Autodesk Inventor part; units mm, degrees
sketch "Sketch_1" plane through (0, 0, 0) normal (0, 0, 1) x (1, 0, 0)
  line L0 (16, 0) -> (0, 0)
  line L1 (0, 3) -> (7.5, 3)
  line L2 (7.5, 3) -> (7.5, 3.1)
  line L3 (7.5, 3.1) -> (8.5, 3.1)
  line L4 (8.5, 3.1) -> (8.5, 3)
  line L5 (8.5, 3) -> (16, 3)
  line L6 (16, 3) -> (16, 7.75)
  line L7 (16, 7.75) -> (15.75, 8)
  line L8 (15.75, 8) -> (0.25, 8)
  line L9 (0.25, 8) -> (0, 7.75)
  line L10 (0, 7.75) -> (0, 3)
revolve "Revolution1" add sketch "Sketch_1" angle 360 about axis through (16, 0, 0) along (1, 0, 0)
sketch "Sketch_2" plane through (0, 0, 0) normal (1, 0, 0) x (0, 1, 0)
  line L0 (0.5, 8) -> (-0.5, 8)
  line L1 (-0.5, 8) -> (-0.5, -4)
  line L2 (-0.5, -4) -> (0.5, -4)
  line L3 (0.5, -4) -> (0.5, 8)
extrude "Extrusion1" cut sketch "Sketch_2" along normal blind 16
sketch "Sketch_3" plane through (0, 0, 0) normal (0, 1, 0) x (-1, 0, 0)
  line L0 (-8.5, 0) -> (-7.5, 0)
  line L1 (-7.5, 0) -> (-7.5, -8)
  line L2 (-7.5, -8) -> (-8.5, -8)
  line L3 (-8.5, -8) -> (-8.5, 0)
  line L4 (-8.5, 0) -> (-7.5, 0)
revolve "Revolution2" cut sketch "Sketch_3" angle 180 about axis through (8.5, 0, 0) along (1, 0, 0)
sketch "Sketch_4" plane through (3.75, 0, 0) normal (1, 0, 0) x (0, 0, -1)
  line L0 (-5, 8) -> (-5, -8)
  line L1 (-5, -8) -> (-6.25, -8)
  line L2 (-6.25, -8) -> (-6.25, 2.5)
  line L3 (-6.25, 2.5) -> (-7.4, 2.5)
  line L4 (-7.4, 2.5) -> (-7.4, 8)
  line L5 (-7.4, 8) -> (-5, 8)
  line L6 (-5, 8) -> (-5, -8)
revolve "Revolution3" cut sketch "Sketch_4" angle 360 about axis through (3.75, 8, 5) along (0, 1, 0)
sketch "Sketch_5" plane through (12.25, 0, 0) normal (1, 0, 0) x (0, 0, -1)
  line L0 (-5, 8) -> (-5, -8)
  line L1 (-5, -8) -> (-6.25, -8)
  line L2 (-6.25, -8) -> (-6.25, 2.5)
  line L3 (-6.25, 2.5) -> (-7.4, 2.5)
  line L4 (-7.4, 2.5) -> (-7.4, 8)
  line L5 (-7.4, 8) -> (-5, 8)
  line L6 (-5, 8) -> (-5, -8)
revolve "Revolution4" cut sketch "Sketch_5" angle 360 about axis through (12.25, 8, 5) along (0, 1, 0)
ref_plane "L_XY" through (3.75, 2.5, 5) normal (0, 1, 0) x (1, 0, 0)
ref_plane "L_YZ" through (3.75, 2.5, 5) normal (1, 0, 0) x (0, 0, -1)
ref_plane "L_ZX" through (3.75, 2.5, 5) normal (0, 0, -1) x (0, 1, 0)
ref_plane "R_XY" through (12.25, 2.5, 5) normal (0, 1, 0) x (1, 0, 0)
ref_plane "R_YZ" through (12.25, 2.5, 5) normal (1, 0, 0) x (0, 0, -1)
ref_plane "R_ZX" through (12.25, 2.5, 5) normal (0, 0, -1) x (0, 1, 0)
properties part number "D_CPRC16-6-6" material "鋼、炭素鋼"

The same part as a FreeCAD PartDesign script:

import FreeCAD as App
import Part
import Sketcher
Q = App.Units.Quantity

doc = App.newDocument("Part")
body = doc.addObject("PartDesign::Body", "Body")

sketch1 = body.newObject("Sketcher::SketchObject", "Sketch")
sketch1.AttachmentSupport = (doc.getObject("XY_Plane"), [""])
sketch1.MapMode = "FlatFace"
sketch1.addGeometry([
    Part.LineSegment(App.Vector(0, 7.75, 0), App.Vector(0, 3, 0)),
    Part.LineSegment(App.Vector(0, 3, 0), App.Vector(7.5, 3, 0)),
    Part.LineSegment(App.Vector(7.5, 3, 0), App.Vector(7.5, 3.1, 0)),
    Part.LineSegment(App.Vector(7.5, 3.1, 0), App.Vector(8.5, 3.1, 0)),
    Part.LineSegment(App.Vector(8.5, 3.1, 0), App.Vector(8.5, 3, 0)),
    Part.LineSegment(App.Vector(8.5, 3, 0), App.Vector(16, 3, 0)),
    Part.LineSegment(App.Vector(16, 3, 0), App.Vector(16, 7.75, 0)),
    Part.LineSegment(App.Vector(16, 7.75, 0), App.Vector(15.75, 8, 0)),
    Part.LineSegment(App.Vector(15.75, 8, 0), App.Vector(0.25, 8, 0)),
    Part.LineSegment(App.Vector(0.25, 8, 0), App.Vector(0, 7.75, 0)),
], False)
sketch1.addConstraint([
    Sketcher.Constraint("Coincident", 0, 2, 1, 1),
    Sketcher.Constraint("Coincident", 1, 2, 2, 1),
    Sketcher.Constraint("Coincident", 2, 2, 3, 1),
    Sketcher.Constraint("Coincident", 3, 2, 4, 1),
    Sketcher.Constraint("Coincident", 4, 2, 5, 1),
    Sketcher.Constraint("Coincident", 5, 2, 6, 1),
    Sketcher.Constraint("Coincident", 6, 2, 7, 1),
    Sketcher.Constraint("Coincident", 7, 2, 8, 1),
    Sketcher.Constraint("Coincident", 8, 2, 9, 1),
    Sketcher.Constraint("Coincident", 9, 2, 0, 1),
    Sketcher.Constraint("Vertical", 0),
    Sketcher.Constraint("Horizontal", 1),
    Sketcher.Constraint("Vertical", 2),
    Sketcher.Constraint("Horizontal", 3),
    Sketcher.Constraint("Vertical", 4),
    Sketcher.Constraint("Horizontal", 5),
    Sketcher.Constraint("Vertical", 6),
    Sketcher.Constraint("Horizontal", 8),
    Sketcher.Constraint("PointOnObject", 0, 2, -2),
    Sketcher.Constraint("Perpendicular", 7, 9),
    Sketcher.Constraint("Horizontal", 1, 2, 4, 2),
    Sketcher.Constraint("Horizontal", 6, 2, 9, 2),
    Sketcher.Constraint("Equal", 1, 5),
    Sketcher.Constraint("Equal", 7, 9),
    Sketcher.Constraint("DistanceX", 3, 1, 3, 2, Q("1 mm")),
    Sketcher.Constraint("DistanceX", 1, 1, 1, 2, Q("7.5 mm")),
    Sketcher.Constraint("DistanceX", 8, 2, 8, 1, Q("15.5 mm")),
    Sketcher.Constraint("DistanceY", 2, 1, 2, 2, Q("0.1 mm")),
    Sketcher.Constraint("DistanceY", -1, 1, 0, 2, Q("3 mm")),
    Sketcher.Constraint("DistanceY", -1, 1, 7, 2, Q("8 mm")),
])
revolution = body.newObject("PartDesign::Revolution", "Revolution")
revolution.Profile = sketch1
revolution.ReferenceAxis = (sketch1, ["H_Axis"])
revolution.Angle = 360

sketch2 = body.newObject("Sketcher::SketchObject", "Sketch001")
sketch2.AttachmentSupport = (doc.getObject("YZ_Plane"), [""])
sketch2.MapMode = "FlatFace"
sketch2.addGeometry([
    Part.LineSegment(App.Vector(0.5, -4, 0), App.Vector(0.5, 8, 0)),
    Part.LineSegment(App.Vector(0.5, 8, 0), App.Vector(-0.5, 8, 0)),
    Part.LineSegment(App.Vector(-0.5, 8, 0), App.Vector(-0.5, -4, 0)),
    Part.LineSegment(App.Vector(-0.5, -4, 0), App.Vector(0.5, -4, 0)),
], False)
sketch2.addConstraint([
    Sketcher.Constraint("Coincident", 0, 2, 1, 1),
    Sketcher.Constraint("Coincident", 1, 2, 2, 1),
    Sketcher.Constraint("Coincident", 2, 2, 3, 1),
    Sketcher.Constraint("Coincident", 3, 2, 0, 1),
    Sketcher.Constraint("Vertical", 0),
    Sketcher.Constraint("Horizontal", 1),
    Sketcher.Constraint("Vertical", 2),
    Sketcher.Constraint("Horizontal", 3),
    Sketcher.Constraint("DistanceX", 1, 2, 1, 1, Q("1 mm")),
    Sketcher.Constraint("DistanceY", 0, 1, 0, 2, Q("12 mm")),
    Sketcher.Constraint("DistanceY", -1, 1, 0, 2, Q("8 mm")),
    Sketcher.Constraint("DistanceX", -1, 1, 0, 2, Q("0.5 mm")),
])
pocket1 = body.newObject("PartDesign::Pocket", "Pocket")
pocket1.Profile = sketch2
pocket1.Length = 16
pocket1.Reversed = True

sketch3 = body.newObject("Sketcher::SketchObject", "Sketch002")
sketch3.AttachmentSupport = (doc.getObject("XZ_Plane"), [""])
sketch3.MapMode = "FlatFace"
sketch3.addGeometry([
    Part.LineSegment(App.Vector(7.5, 0, 0), App.Vector(8.5, 0, 0)),
    Part.LineSegment(App.Vector(8.5, 0, 0), App.Vector(8.5, -8, 0)),
    Part.LineSegment(App.Vector(8.5, -8, 0), App.Vector(7.5, -8, 0)),
    Part.LineSegment(App.Vector(7.5, -8, 0), App.Vector(7.5, 0, 0)),
], False)
sketch3.addConstraint([
    Sketcher.Constraint("Coincident", 0, 2, 1, 1),
    Sketcher.Constraint("Coincident", 1, 2, 2, 1),
    Sketcher.Constraint("Coincident", 2, 2, 3, 1),
    Sketcher.Constraint("Coincident", 3, 2, 0, 1),
    Sketcher.Constraint("Horizontal", 0),
    Sketcher.Constraint("Vertical", 1),
    Sketcher.Constraint("Horizontal", 2),
    Sketcher.Constraint("Vertical", 3),
    Sketcher.Constraint("PointOnObject", 0, 2, -1),
    Sketcher.Constraint("DistanceX", 0, 1, 0, 2, Q("1 mm")),
    Sketcher.Constraint("DistanceY", 1, 2, 1, 1, Q("8 mm")),
    Sketcher.Constraint("DistanceX", -1, 1, 0, 2, Q("8.5 mm")),
])
groove = body.newObject("PartDesign::Groove", "Groove")
groove.Profile = sketch3
groove.ReferenceAxis = (sketch3, ["H_Axis"])
groove.Angle = 180

sketch4 = body.newObject("Sketcher::SketchObject", "Sketch003")
sketch4.AttachmentSupport = (doc.getObject("YZ_Plane"), [""])
sketch4.MapMode = "FlatFace"
sketch4.AttachmentOffset = App.Placement(App.Vector(0, 0, 3.75), App.Rotation())
sketch4.addGeometry([
    Part.LineSegment(App.Vector(-8, 5, 0), App.Vector(8, 5, 0)),
    Part.LineSegment(App.Vector(8, 5, 0), App.Vector(8, 7.4, 0)),
    Part.LineSegment(App.Vector(8, 7.4, 0), App.Vector(2.5, 7.4, 0)),
    Part.LineSegment(App.Vector(2.5, 7.4, 0), App.Vector(2.5, 6.2, 0)),
    Part.LineSegment(App.Vector(2.5, 6.2, 0), App.Vector(-8, 6.2, 0)),
    Part.LineSegment(App.Vector(-8, 6.2, 0), App.Vector(-8, 5, 0)),
], False)
sketch4.addGeometry(Part.LineSegment(App.Vector(-8, 5, 0), App.Vector(8, 5, 0)), True)
sketch4.addConstraint([
    Sketcher.Constraint("Coincident", 0, 2, 1, 1),
    Sketcher.Constraint("Coincident", 1, 2, 2, 1),
    Sketcher.Constraint("Coincident", 2, 2, 3, 1),
    Sketcher.Constraint("Coincident", 3, 2, 4, 1),
    Sketcher.Constraint("Coincident", 4, 2, 5, 1),
    Sketcher.Constraint("Coincident", 5, 2, 0, 1),
    Sketcher.Constraint("Horizontal", 0),
    Sketcher.Constraint("Vertical", 1),
    Sketcher.Constraint("Horizontal", 2),
    Sketcher.Constraint("Vertical", 3),
    Sketcher.Constraint("Horizontal", 4),
    Sketcher.Constraint("Vertical", 5),
    Sketcher.Constraint("Horizontal", 6),
    Sketcher.Constraint("Coincident", 6, 1, 5, 2),
    Sketcher.Constraint("Vertical", 1, 2, 6, 2),
    Sketcher.Constraint("DistanceX", 0, 1, 0, 2, Q("16 mm")),
    Sketcher.Constraint("DistanceX", 2, 2, 2, 1, Q("5.5 mm")),
    Sketcher.Constraint("DistanceY", 1, 1, 1, 2, Q("2.4 mm")),
    Sketcher.Constraint("DistanceX", -1, 1, 0, 2, Q("8 mm")),
    Sketcher.Constraint("DistanceY", -1, 1, 0, 2, Q("5 mm")),
    Sketcher.Constraint("DistanceY", 3, 2, 3, 1, Q("1.15 mm")),
])
groove2 = body.newObject("PartDesign::Groove", "Groove001")
groove2.Profile = sketch4
groove2.ReferenceAxis = (sketch4, ["Axis0"])
groove2.Angle = 360

sketch5 = body.newObject("Sketcher::SketchObject", "Sketch004")
sketch5.AttachmentSupport = (doc.getObject("YZ_Plane"), [""])
sketch5.MapMode = "FlatFace"
sketch5.AttachmentOffset = App.Placement(App.Vector(0, 0, 12.25), App.Rotation())
sketch5.addGeometry([
    Part.LineSegment(App.Vector(-8, 5, 0), App.Vector(8, 5, 0)),
    Part.LineSegment(App.Vector(8, 5, 0), App.Vector(8, 7.4, 0)),
    Part.LineSegment(App.Vector(8, 7.4, 0), App.Vector(2.5, 7.4, 0)),
    Part.LineSegment(App.Vector(2.5, 7.4, 0), App.Vector(2.5, 6.2, 0)),
    Part.LineSegment(App.Vector(2.5, 6.2, 0), App.Vector(-8, 6.2, 0)),
    Part.LineSegment(App.Vector(-8, 6.2, 0), App.Vector(-8, 5, 0)),
], False)
sketch5.addGeometry(Part.LineSegment(App.Vector(-8, 5, 0), App.Vector(8, 5, 0)), True)
sketch5.addConstraint([
    Sketcher.Constraint("Coincident", 0, 2, 1, 1),
    Sketcher.Constraint("Coincident", 1, 2, 2, 1),
    Sketcher.Constraint("Coincident", 2, 2, 3, 1),
    Sketcher.Constraint("Coincident", 3, 2, 4, 1),
    Sketcher.Constraint("Coincident", 4, 2, 5, 1),
    Sketcher.Constraint("Coincident", 5, 2, 0, 1),
    Sketcher.Constraint("Horizontal", 0),
    Sketcher.Constraint("Vertical", 1),
    Sketcher.Constraint("Horizontal", 2),
    Sketcher.Constraint("Vertical", 3),
    Sketcher.Constraint("Horizontal", 4),
    Sketcher.Constraint("Vertical", 5),
    Sketcher.Constraint("Horizontal", 6),
    Sketcher.Constraint("Coincident", 6, 1, 5, 2),
    Sketcher.Constraint("Vertical", 1, 2, 6, 2),
    Sketcher.Constraint("DistanceX", 0, 1, 0, 2, Q("16 mm")),
    Sketcher.Constraint("DistanceX", 2, 2, 2, 1, Q("5.5 mm")),
    Sketcher.Constraint("DistanceY", 1, 1, 1, 2, Q("2.4 mm")),
    Sketcher.Constraint("DistanceX", -1, 1, 0, 2, Q("8 mm")),
    Sketcher.Constraint("DistanceY", -1, 1, 0, 2, Q("5 mm")),
    Sketcher.Constraint("DistanceY", 3, 2, 3, 1, Q("1.15 mm")),
])
groove3 = body.newObject("PartDesign::Groove", "Groove002")
groove3.Profile = sketch5
groove3.ReferenceAxis = (sketch5, ["Axis0"])
groove3.Angle = 360

doc.recompute()
